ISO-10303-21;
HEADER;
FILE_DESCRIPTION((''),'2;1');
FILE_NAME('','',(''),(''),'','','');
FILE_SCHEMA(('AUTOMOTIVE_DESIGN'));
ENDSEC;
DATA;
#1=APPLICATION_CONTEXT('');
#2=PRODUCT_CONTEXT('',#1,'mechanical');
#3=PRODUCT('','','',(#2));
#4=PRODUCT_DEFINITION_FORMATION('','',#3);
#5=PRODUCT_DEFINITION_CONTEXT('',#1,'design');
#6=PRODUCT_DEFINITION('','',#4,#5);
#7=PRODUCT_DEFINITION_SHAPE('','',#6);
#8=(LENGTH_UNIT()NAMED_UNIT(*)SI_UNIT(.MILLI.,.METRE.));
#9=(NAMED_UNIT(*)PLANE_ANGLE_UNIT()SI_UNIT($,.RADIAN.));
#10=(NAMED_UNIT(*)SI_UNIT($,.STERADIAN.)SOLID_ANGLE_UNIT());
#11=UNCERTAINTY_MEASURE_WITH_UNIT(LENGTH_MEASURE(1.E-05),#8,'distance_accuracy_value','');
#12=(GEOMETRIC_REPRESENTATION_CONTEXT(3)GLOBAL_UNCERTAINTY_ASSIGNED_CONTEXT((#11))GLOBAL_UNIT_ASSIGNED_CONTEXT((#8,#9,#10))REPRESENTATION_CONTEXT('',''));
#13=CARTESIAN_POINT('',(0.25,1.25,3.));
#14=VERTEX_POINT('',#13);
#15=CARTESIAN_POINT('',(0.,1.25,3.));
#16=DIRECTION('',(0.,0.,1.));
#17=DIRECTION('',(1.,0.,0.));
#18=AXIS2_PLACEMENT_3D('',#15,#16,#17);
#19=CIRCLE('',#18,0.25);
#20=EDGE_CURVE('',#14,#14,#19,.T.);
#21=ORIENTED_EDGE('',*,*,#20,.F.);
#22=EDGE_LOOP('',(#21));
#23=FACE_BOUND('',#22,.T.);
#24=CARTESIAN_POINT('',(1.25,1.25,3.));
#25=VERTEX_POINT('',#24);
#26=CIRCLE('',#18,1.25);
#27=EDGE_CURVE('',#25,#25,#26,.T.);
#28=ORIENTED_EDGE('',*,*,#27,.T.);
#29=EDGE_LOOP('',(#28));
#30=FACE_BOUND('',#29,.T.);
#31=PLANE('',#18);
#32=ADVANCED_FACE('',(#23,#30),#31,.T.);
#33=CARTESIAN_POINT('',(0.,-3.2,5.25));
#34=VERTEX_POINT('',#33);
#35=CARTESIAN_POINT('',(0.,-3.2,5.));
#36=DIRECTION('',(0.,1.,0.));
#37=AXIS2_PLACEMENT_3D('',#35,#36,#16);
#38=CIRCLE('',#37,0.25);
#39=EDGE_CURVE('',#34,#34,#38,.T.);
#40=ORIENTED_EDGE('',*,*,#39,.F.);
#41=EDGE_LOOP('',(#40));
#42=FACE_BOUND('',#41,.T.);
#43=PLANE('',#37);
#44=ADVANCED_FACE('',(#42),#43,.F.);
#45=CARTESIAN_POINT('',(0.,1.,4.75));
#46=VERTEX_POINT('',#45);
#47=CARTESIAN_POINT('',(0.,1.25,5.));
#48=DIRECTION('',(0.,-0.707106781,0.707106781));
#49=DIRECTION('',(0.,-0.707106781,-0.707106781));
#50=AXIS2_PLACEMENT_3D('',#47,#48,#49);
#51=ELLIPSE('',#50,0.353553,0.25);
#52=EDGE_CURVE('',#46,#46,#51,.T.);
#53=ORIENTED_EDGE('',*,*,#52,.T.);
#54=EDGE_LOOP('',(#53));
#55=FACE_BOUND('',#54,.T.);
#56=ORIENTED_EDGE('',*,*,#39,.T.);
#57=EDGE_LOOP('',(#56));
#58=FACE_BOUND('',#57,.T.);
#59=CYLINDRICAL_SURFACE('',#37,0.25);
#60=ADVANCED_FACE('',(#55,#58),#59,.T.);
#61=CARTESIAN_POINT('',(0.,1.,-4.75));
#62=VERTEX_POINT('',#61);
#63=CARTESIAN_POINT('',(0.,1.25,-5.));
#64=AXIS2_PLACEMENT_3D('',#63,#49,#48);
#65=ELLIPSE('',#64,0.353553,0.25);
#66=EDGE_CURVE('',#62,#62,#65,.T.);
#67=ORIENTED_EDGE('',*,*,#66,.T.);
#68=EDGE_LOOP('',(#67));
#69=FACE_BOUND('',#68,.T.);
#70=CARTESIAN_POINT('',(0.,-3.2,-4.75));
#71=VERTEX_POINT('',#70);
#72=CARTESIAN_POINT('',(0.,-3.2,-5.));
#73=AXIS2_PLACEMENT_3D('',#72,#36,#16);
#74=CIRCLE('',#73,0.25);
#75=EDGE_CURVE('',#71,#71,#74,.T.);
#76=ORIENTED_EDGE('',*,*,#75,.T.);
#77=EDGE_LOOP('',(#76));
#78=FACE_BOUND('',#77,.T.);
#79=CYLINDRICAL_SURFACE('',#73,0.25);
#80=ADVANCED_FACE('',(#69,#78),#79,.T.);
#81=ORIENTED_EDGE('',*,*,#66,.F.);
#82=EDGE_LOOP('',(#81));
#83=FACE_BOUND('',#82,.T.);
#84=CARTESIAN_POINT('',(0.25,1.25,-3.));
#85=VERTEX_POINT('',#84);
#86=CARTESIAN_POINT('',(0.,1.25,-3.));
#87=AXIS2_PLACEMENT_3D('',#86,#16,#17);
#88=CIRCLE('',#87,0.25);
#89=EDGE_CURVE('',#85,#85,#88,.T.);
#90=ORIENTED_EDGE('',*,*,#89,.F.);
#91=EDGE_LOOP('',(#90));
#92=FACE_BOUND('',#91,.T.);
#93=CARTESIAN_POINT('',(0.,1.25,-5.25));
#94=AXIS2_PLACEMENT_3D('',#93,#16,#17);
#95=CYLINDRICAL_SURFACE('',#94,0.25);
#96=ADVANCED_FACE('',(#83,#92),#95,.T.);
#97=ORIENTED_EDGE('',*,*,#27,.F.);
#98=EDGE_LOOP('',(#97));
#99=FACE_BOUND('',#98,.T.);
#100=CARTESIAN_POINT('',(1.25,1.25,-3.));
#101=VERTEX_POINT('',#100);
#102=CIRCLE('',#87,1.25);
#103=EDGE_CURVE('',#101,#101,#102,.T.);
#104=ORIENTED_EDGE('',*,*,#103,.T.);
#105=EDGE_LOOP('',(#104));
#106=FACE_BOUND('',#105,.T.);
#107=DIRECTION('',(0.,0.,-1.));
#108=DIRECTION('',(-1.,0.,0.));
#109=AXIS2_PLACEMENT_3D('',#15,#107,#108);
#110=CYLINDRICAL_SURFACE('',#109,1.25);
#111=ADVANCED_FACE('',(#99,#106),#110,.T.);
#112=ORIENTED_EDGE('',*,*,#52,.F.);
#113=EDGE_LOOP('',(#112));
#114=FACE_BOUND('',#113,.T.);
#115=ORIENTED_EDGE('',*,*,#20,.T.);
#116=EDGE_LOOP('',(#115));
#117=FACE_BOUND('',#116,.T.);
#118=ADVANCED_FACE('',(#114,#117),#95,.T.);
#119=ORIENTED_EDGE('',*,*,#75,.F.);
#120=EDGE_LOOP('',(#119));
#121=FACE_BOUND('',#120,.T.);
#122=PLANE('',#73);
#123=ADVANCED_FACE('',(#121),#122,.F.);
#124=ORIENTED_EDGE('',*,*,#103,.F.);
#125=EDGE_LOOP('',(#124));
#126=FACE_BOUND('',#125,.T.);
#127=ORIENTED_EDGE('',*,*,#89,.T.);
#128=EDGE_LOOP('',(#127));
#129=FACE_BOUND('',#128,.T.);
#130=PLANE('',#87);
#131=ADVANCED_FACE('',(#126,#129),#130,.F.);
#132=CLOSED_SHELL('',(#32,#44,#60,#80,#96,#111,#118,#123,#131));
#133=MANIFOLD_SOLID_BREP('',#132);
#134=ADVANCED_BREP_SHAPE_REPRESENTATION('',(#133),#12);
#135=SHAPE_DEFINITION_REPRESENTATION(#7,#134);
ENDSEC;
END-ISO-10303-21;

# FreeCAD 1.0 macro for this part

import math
import FreeCAD as App
import Part
import Sketcher

V = App.Vector
Q = App.Units.Quantity

doc = App.newDocument("Part")
body = doc.addObject("PartDesign::Body", "Body")

# Sketch on XY plane
sketch1 = body.newObject("Sketcher::SketchObject", "Sketch")
sketch1.AttachmentSupport = (doc.getObject("XY_Plane"), [""])
sketch1.MapMode = "FlatFace"
sketch1.addGeometry(Part.Circle(V(0, 1.2, 0), V(0, 0, 1), 1.2), False)
sketch1.addConstraint(Sketcher.Constraint("PointOnObject", 0, 3, -2))
sketch1.addConstraint(Sketcher.Constraint("Diameter", 0, Q("2.5 mm")))
sketch1.addConstraint(Sketcher.Constraint("DistanceY", -1, 1, 0, 3, Q("1.25 mm")))
pad1 = body.newObject("PartDesign::Pad", "Pad")
pad1.Profile = sketch1
pad1.Length = 6
pad1.Midplane = True

# Sketch on XY plane
sketch2 = body.newObject("Sketcher::SketchObject", "Sketch001")
sketch2.AttachmentSupport = (doc.getObject("XY_Plane"), [""])
sketch2.MapMode = "FlatFace"
sketch2.AttachmentOffset = App.Placement(V(0, 0, 3), App.Rotation())
sketch2.addGeometry(Part.Circle(V(0, 1.25, 0), V(0, 0, 1), 0.25), False)
sketch2.addConstraint(Sketcher.Constraint("PointOnObject", 0, 3, -2))
sketch2.addConstraint(Sketcher.Constraint("Diameter", 0, Q("0.5 mm")))
sketch2.addConstraint(Sketcher.Constraint("DistanceY", -1, 1, 0, 3, Q("1.25 mm")))
pad2 = body.newObject("PartDesign::Pad", "Pad001")
pad2.Profile = sketch2
pad2.Type = "TwoLengths"
pad2.Length = 2.25
pad2.Length2 = 8.25

# Sketch on XZ plane
sketch3 = body.newObject("Sketcher::SketchObject", "Sketch002")
sketch3.AttachmentSupport = (doc.getObject("XZ_Plane"), [""])
sketch3.MapMode = "FlatFace"
sketch3.addGeometry(Part.Circle(V(0, 5, 0), V(0, 0, 1), 0.25), False)
sketch3.addConstraint(Sketcher.Constraint("PointOnObject", 0, 3, -2))
sketch3.addConstraint(Sketcher.Constraint("Diameter", 0, Q("0.5 mm")))
sketch3.addConstraint(Sketcher.Constraint("DistanceY", -1, 1, 0, 3, Q("5 mm")))
pad3 = body.newObject("PartDesign::Pad", "Pad002")
pad3.Profile = sketch3
pad3.Type = "UpToFirst"
pad3.Reversed = True

# Sketch on XZ plane
sketch4 = body.newObject("Sketcher::SketchObject", "Sketch003")
sketch4.AttachmentSupport = (doc.getObject("XZ_Plane"), [""])
sketch4.MapMode = "FlatFace"
sketch4.addGeometry(Part.Circle(V(0, -5, 0), V(0, 0, 1), 0.25), False)
sketch4.addConstraint(Sketcher.Constraint("PointOnObject", 0, 3, -2))
sketch4.addConstraint(Sketcher.Constraint("Diameter", 0, Q("0.5 mm")))
sketch4.addConstraint(Sketcher.Constraint("DistanceY", 0, 3, -1, 1, Q("5 mm")))
pad4 = body.newObject("PartDesign::Pad", "Pad003")
pad4.Profile = sketch4
pad4.Type = "UpToFirst"
pad4.Reversed = True

# Sketch on XZ plane
sketch5 = body.newObject("Sketcher::SketchObject", "Sketch004")
sketch5.AttachmentSupport = (doc.getObject("XZ_Plane"), [""])
sketch5.MapMode = "FlatFace"
sketch5.addGeometry(Part.Circle(V(0, 5, 0), V(0, 0, 1), 0.25), False)
sketch5.addGeometry(Part.Circle(V(0, -5, 0), V(0, 0, 1), 0.25), False)
sketch5.addConstraint(Sketcher.Constraint("Equal", 0, 1))
sketch5.addConstraint(Sketcher.Constraint("Symmetric", 0, 3, 1, 3, -1, 1))
sketch5.addConstraint(Sketcher.Constraint("PointOnObject", 0, 3, -2))
sketch5.addConstraint(Sketcher.Constraint("Diameter", 0, Q("0.5 mm")))
sketch5.addConstraint(Sketcher.Constraint("DistanceY", -1, 1, 0, 3, Q("5 mm")))
pad5 = body.newObject("PartDesign::Pad", "Pad004")
pad5.Profile = sketch5
pad5.Length = 3.2

# Sketch on XZ plane
sketch6 = body.newObject("Sketcher::SketchObject", "Sketch005")
sketch6.AttachmentSupport = (doc.getObject("XZ_Plane"), [""])
sketch6.MapMode = "FlatFace"
sketch6.AttachmentOffset = App.Placement(V(0, 0, 3.2), App.Rotation())
sketch6.addGeometry(Part.LineSegment(V(-0.35, 5, 0), V(-0.25, 5, 0)), False)
sketch6.addGeometry(Part.ArcOfCircle(Part.Circle(V(0, 5, 0), V(0, 0, 1), 0.25), math.radians(0), math.radians(180)), False)
sketch6.addGeometry(Part.LineSegment(V(0.25, 5, 0), V(0.35, 5, 0)), False)
sketch6.addGeometry(Part.LineSegment(V(0.35, 5, 0), V(0.35, 5.35, 0)), False)
sketch6.addGeometry(Part.LineSegment(V(0.35, 5.35, 0), V(-0.35, 5.35, 0)), False)
sketch6.addGeometry(Part.LineSegment(V(-0.35, 5.35, 0), V(-0.35, 5, 0)), False)
sketch6.addGeometry(Part.LineSegment(V(0.35, -5, 0), V(0.25, -5, 0)), False)
sketch6.addGeometry(Part.ArcOfCircle(Part.Circle(V(0, -5, 0), V(0, 0, 1), 0.25), math.radians(180), math.radians(360)), False)
sketch6.addGeometry(Part.LineSegment(V(-0.25, -5, 0), V(-0.35, -5, 0)), False)
sketch6.addGeometry(Part.LineSegment(V(-0.35, -5, 0), V(-0.35, -5.35, 0)), False)
sketch6.addGeometry(Part.LineSegment(V(-0.35, -5.35, 0), V(0.35, -5.35, 0)), False)
sketch6.addGeometry(Part.LineSegment(V(0.35, -5.35, 0), V(0.35, -5, 0)), False)
sketch6.addConstraint(Sketcher.Constraint("Coincident", 0, 2, 1, 2))
sketch6.addConstraint(Sketcher.Constraint("Coincident", 1, 1, 2, 1))
sketch6.addConstraint(Sketcher.Constraint("Coincident", 2, 2, 3, 1))
sketch6.addConstraint(Sketcher.Constraint("Coincident", 3, 2, 4, 1))
sketch6.addConstraint(Sketcher.Constraint("Coincident", 4, 2, 5, 1))
sketch6.addConstraint(Sketcher.Constraint("Coincident", 5, 2, 0, 1))
sketch6.addConstraint(Sketcher.Constraint("Coincident", 6, 2, 7, 2))
sketch6.addConstraint(Sketcher.Constraint("Coincident", 7, 1, 8, 1))
sketch6.addConstraint(Sketcher.Constraint("Coincident", 8, 2, 9, 1))
sketch6.addConstraint(Sketcher.Constraint("Coincident", 9, 2, 10, 1))
sketch6.addConstraint(Sketcher.Constraint("Coincident", 10, 2, 11, 1))
sketch6.addConstraint(Sketcher.Constraint("Coincident", 11, 2, 6, 1))
sketch6.addConstraint(Sketcher.Constraint("Horizontal", 0))
sketch6.addConstraint(Sketcher.Constraint("Horizontal", 2))
sketch6.addConstraint(Sketcher.Constraint("Vertical", 3))
sketch6.addConstraint(Sketcher.Constraint("Horizontal", 4))
sketch6.addConstraint(Sketcher.Constraint("Vertical", 5))
sketch6.addConstraint(Sketcher.Constraint("Horizontal", 6))
sketch6.addConstraint(Sketcher.Constraint("Horizontal", 8))
sketch6.addConstraint(Sketcher.Constraint("Vertical", 9))
sketch6.addConstraint(Sketcher.Constraint("Horizontal", 10))
sketch6.addConstraint(Sketcher.Constraint("Vertical", 11))
sketch6.addConstraint(Sketcher.Constraint("Equal", 1, 7))
sketch6.addConstraint(Sketcher.Constraint("Symmetric", 1, 3, 7, 3, -1, 1))
sketch6.addConstraint(Sketcher.Constraint("Symmetric", 2, 2, 8, 2, -1, 1))
sketch6.addConstraint(Sketcher.Constraint("Symmetric", 4, 2, 10, 2, -1, 1))
sketch6.addConstraint(Sketcher.Constraint("Symmetric", 0, 2, 1, 1, -2))
sketch6.addConstraint(Sketcher.Constraint("Symmetric", 8, 2, 11, 2, -2))
sketch6.addConstraint(Sketcher.Constraint("Horizontal", 1, 3, 0, 2))
sketch6.addConstraint(Sketcher.Constraint("Radius", 1, Q("0.25 mm")))
sketch6.addConstraint(Sketcher.Constraint("DistanceX", 0, 1, 0, 2, Q("0.1 mm")))
sketch6.addConstraint(Sketcher.Constraint("DistanceY", -1, 1, 1, 3, Q("5 mm")))
sketch6.addConstraint(Sketcher.Constraint("DistanceY", 3, 1, 3, 2, Q("0.35 mm")))
pocket1 = body.newObject("PartDesign::Pocket", "Pocket")
pocket1.Profile = sketch6
pocket1.Type = "ThroughAll"

doc.recompute()
